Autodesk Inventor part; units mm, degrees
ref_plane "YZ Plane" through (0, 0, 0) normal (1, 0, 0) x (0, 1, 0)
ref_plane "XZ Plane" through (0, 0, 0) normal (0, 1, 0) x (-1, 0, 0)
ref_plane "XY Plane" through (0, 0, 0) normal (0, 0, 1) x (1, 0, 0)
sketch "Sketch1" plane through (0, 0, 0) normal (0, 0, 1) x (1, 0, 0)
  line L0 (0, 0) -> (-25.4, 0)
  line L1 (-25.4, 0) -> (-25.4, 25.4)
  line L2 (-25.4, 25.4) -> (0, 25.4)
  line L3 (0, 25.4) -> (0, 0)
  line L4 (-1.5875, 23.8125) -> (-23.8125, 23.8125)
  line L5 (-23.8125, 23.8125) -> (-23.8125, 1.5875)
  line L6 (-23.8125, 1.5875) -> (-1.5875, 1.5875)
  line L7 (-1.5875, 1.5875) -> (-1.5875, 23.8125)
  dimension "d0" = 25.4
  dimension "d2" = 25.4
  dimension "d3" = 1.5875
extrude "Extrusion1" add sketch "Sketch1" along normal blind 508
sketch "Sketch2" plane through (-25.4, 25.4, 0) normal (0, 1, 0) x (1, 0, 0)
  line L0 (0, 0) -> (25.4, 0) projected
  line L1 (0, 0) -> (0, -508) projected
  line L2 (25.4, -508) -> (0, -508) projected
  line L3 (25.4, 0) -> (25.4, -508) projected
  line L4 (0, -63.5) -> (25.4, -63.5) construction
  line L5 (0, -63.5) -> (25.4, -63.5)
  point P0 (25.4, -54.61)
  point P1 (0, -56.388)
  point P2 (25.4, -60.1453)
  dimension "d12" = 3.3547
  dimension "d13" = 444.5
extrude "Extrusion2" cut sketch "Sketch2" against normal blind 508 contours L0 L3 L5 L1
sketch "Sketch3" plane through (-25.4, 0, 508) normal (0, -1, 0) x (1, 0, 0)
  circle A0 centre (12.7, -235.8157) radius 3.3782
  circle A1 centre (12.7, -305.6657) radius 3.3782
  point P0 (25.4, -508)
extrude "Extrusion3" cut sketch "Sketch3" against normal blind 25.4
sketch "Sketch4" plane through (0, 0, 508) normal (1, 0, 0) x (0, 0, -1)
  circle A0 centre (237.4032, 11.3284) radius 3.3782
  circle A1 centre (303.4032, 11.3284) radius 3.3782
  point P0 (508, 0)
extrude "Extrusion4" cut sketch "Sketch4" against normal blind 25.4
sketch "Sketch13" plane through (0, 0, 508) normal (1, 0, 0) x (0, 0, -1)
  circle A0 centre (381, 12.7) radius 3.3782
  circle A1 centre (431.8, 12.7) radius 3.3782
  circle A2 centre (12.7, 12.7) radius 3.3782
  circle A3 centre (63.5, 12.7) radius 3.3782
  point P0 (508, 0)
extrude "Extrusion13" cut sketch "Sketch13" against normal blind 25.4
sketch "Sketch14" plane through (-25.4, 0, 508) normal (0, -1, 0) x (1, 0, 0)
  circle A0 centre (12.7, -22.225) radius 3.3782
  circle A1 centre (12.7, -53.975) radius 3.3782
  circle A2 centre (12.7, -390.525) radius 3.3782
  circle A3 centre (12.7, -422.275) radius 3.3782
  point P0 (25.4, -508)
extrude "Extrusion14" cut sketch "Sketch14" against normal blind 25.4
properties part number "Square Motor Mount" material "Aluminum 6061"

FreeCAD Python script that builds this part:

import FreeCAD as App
import Part
import Sketcher
Q = App.Units.Quantity


def add_polygon(sketch, points):
    """Adds a closed chain of lines whose ends are joined by coincident constraints."""
    first, n = sketch.GeometryCount, len(points)
    for a, b in zip(points, points[1:] + points[:1]):
        sketch.addGeometry(Part.LineSegment(App.Vector(*a, 0), App.Vector(*b, 0)), False)
    for i in range(n):
        sketch.addConstraint(Sketcher.Constraint("Coincident", first + i, 2, first + (i + 1) % n, 1))

doc = App.newDocument("Part")
body = doc.addObject("PartDesign::Body", "Body")

# Sketch on XY plane
sketch1 = doc.addObject("Sketcher::SketchObject", "Sketch")
body.addObject(sketch1)
sketch1.AttachmentSupport = (doc.XY_Plane, [""])
sketch1.MapMode = "FlatFace"
add_polygon(sketch1, [(-25, 0), (0, 0), (0, 25), (-25, 25)])  # lines 0-3
add_polygon(sketch1, [(-24, 24), (-2, 24), (-2, 2), (-24, 2)])  # lines 4-7
sketch1.addConstraint(Sketcher.Constraint("Horizontal", 0))
sketch1.addConstraint(Sketcher.Constraint("Vertical", 1))
sketch1.addConstraint(Sketcher.Constraint("Horizontal", 2))
sketch1.addConstraint(Sketcher.Constraint("Vertical", 3))
sketch1.addConstraint(Sketcher.Constraint("Horizontal", 4))
sketch1.addConstraint(Sketcher.Constraint("Vertical", 5))
sketch1.addConstraint(Sketcher.Constraint("Horizontal", 6))
sketch1.addConstraint(Sketcher.Constraint("Vertical", 7))
sketch1.addConstraint(Sketcher.Constraint("Coincident", 0, 2, -1, 1))
sketch1.addConstraint(Sketcher.Constraint("Equal", 2, 1))
sketch1.addConstraint(Sketcher.Constraint("Equal", 6, 5))
sketch1.addConstraint(Sketcher.Constraint("DistanceX", 0, 1, 0, 2, Q("1 in")))
sketch1.addConstraint(Sketcher.Constraint("DistanceX", 4, 2, -1, 1, Q("0.0625 in")))
sketch1.addConstraint(Sketcher.Constraint("DistanceY", -1, 1, 5, 2, Q("0.0625 in")))
sketch1.addConstraint(Sketcher.Constraint("DistanceY", 4, 2, 1, 2, Q("0.0625 in")))
pad1 = doc.addObject("PartDesign::Pad", "Pad")
body.addObject(pad1)
pad1.Profile = sketch1
pad1.Length = Q("20 in")

# Sketch on XZ plane
sketch2 = doc.addObject("Sketcher::SketchObject", "Sketch001")
body.addObject(sketch2)
sketch2.AttachmentSupport = (doc.XZ_Plane, [""])
sketch2.MapMode = "FlatFace"
sketch2.AttachmentOffset = App.Placement(App.Vector(0, 0, -1 * 25.4), App.Rotation())
add_polygon(sketch2, [(0, 0), (-25, 0), (-25, 64), (0, 64)])  # lines 0-3
sketch2.addConstraint(Sketcher.Constraint("Horizontal", 0))
sketch2.addConstraint(Sketcher.Constraint("Vertical", 1))
sketch2.addConstraint(Sketcher.Constraint("Horizontal", 2))
sketch2.addConstraint(Sketcher.Constraint("Vertical", 3))
sketch2.addConstraint(Sketcher.Constraint("Coincident", 3, 2, -1, 1))
sketch2.addConstraint(Sketcher.Constraint("DistanceX", 0, 2, 0, 1, Q("1 in")))
sketch2.addConstraint(Sketcher.Constraint("DistanceY", 1, 1, 1, 2, Q("2.5 in")))
pocket1 = doc.addObject("PartDesign::Pocket", "Pocket")
body.addObject(pocket1)
pocket1.Profile = sketch2
pocket1.Length = Q("20 in")
pocket1.Reversed = True

# Sketch on XZ plane
sketch3 = doc.addObject("Sketcher::SketchObject", "Sketch002")
body.addObject(sketch3)
sketch3.AttachmentSupport = (doc.XZ_Plane, [""])
sketch3.MapMode = "FlatFace"
sketch3.addGeometry(Part.Circle(App.Vector(-12.7, 272.2, 0), App.Vector(0, 0, 1), 3.4), False)
sketch3.addGeometry(Part.Circle(App.Vector(-12.7, 202.3, 0), App.Vector(0, 0, 1), 3.4), False)
sketch3.addConstraint(Sketcher.Constraint("Equal", 0, 1))
sketch3.addConstraint(Sketcher.Constraint("Vertical", 0, 3, 1, 3))
sketch3.addConstraint(Sketcher.Constraint("Diameter", 0, Q("0.266 in")))
sketch3.addConstraint(Sketcher.Constraint("DistanceX", 0, 3, -1, 1, Q("0.5 in")))
sketch3.addConstraint(Sketcher.Constraint("DistanceY", 1, 3, 0, 3, Q("2.75 in")))
sketch3.addConstraint(Sketcher.Constraint("DistanceY", -1, 1, 0, 3, Q("272.1843 mm")))
pocket2 = doc.addObject("PartDesign::Pocket", "Pocket001")
body.addObject(pocket2)
pocket2.Profile = sketch3
pocket2.Length = Q("1 in")

# Sketch on YZ plane
sketch4 = doc.addObject("Sketcher::SketchObject", "Sketch003")
body.addObject(sketch4)
sketch4.AttachmentSupport = (doc.YZ_Plane, [""])
sketch4.MapMode = "FlatFace"
sketch4.addGeometry(Part.Circle(App.Vector(11.3, 270.6, 0), App.Vector(0, 0, 1), 3.4), False)
sketch4.addGeometry(Part.Circle(App.Vector(11.3, 204.6, 0), App.Vector(0, 0, 1), 3.4), False)
sketch4.addConstraint(Sketcher.Constraint("Equal", 0, 1))
sketch4.addConstraint(Sketcher.Constraint("Vertical", 0, 3, 1, 3))
sketch4.addConstraint(Sketcher.Constraint("Diameter", 0, Q("0.266 in")))
sketch4.addConstraint(Sketcher.Constraint("DistanceX", -1, 1, 0, 3, Q("0.446 in")))
sketch4.addConstraint(Sketcher.Constraint("DistanceY", -1, 1, 1, 3, Q("8.055 in")))
sketch4.addConstraint(Sketcher.Constraint("DistanceY", -1, 1, 0, 3, Q("270.5968 mm")))
pocket3 = doc.addObject("PartDesign::Pocket", "Pocket002")
body.addObject(pocket3)
pocket3.Profile = sketch4
pocket3.Length = Q("1 in")

# Sketch on YZ plane
sketch5 = doc.addObject("Sketcher::SketchObject", "Sketch004")
body.addObject(sketch5)
sketch5.AttachmentSupport = (doc.YZ_Plane, [""])
sketch5.MapMode = "FlatFace"
sketch5.addGeometry(Part.Circle(App.Vector(12.7, 127, 0), App.Vector(0, 0, 1), 3.4), False)
sketch5.addGeometry(Part.Circle(App.Vector(12.7, 76.2, 0), App.Vector(0, 0, 1), 3.4), False)
sketch5.addGeometry(Part.Circle(App.Vector(12.7, 495.3, 0), App.Vector(0, 0, 1), 3.4), False)
sketch5.addGeometry(Part.Circle(App.Vector(12.7, 444.5, 0), App.Vector(0, 0, 1), 3.4), False)
sketch5.addConstraint(Sketcher.Constraint("Equal", 0, 1))
sketch5.addConstraint(Sketcher.Constraint("Equal", 1, 2))
sketch5.addConstraint(Sketcher.Constraint("Equal", 2, 3))
sketch5.addConstraint(Sketcher.Constraint("Vertical", 0, 3, 1, 3))
sketch5.addConstraint(Sketcher.Constraint("Vertical", 1, 3, 2, 3))
sketch5.addConstraint(Sketcher.Constraint("Vertical", 2, 3, 3, 3))
sketch5.addConstraint(Sketcher.Constraint("Diameter", 0, Q("0.266 in")))
sketch5.addConstraint(Sketcher.Constraint("DistanceY", -1, 1, 0, 3, Q("5 in")))
sketch5.addConstraint(Sketcher.Constraint("DistanceY", -1, 1, 1, 3, Q("3 in")))
sketch5.addConstraint(Sketcher.Constraint("DistanceY", 3, 3, 2, 3, Q("2 in")))
sketch5.addConstraint(Sketcher.Constraint("DistanceX", -1, 1, 0, 3, Q("0.5 in")))
sketch5.addConstraint(Sketcher.Constraint("DistanceY", -1, 1, 2, 3, Q("19.5 in")))
pocket4 = doc.addObject("PartDesign::Pocket", "Pocket003")
body.addObject(pocket4)
pocket4.Profile = sketch5
pocket4.Length = Q("1 in")

# Sketch on XZ plane
sketch6 = doc.addObject("Sketcher::SketchObject", "Sketch005")
body.addObject(sketch6)
sketch6.AttachmentSupport = (doc.XZ_Plane, [""])
sketch6.MapMode = "FlatFace"
sketch6.addGeometry(Part.Circle(App.Vector(-12.7, 485.8, 0), App.Vector(0, 0, 1), 3.4), False)
sketch6.addGeometry(Part.Circle(App.Vector(-12.7, 454, 0), App.Vector(0, 0, 1), 3.4), False)
sketch6.addGeometry(Part.Circle(App.Vector(-12.7, 117.5, 0), App.Vector(0, 0, 1), 3.4), False)
sketch6.addGeometry(Part.Circle(App.Vector(-12.7, 85.7, 0), App.Vector(0, 0, 1), 3.4), False)
sketch6.addConstraint(Sketcher.Constraint("Equal", 0, 1))
sketch6.addConstraint(Sketcher.Constraint("Equal", 1, 2))
sketch6.addConstraint(Sketcher.Constraint("Equal", 2, 3))
sketch6.addConstraint(Sketcher.Constraint("Vertical", 0, 3, 1, 3))
sketch6.addConstraint(Sketcher.Constraint("Vertical", 1, 3, 2, 3))
sketch6.addConstraint(Sketcher.Constraint("Vertical", 2, 3, 3, 3))
sketch6.addConstraint(Sketcher.Constraint("Diameter", 0, Q("0.266 in")))
sketch6.addConstraint(Sketcher.Constraint("DistanceX", 0, 3, -1, 1, Q("0.5 in")))
sketch6.addConstraint(Sketcher.Constraint("DistanceY", 2, 3, 0, 3, Q("14.5 in")))
sketch6.addConstraint(Sketcher.Constraint("DistanceY", 3, 3, 1, 3, Q("14.5 in")))
sketch6.addConstraint(Sketcher.Constraint("DistanceY", 1, 3, 0, 3, Q("1.25 in")))
sketch6.addConstraint(Sketcher.Constraint("DistanceY", -1, 1, 0, 3, Q("19.125 in")))
pocket5 = doc.addObject("PartDesign::Pocket", "Pocket004")
body.addObject(pocket5)
pocket5.Profile = sketch6
pocket5.Length = Q("1 in")

doc.recompute()
